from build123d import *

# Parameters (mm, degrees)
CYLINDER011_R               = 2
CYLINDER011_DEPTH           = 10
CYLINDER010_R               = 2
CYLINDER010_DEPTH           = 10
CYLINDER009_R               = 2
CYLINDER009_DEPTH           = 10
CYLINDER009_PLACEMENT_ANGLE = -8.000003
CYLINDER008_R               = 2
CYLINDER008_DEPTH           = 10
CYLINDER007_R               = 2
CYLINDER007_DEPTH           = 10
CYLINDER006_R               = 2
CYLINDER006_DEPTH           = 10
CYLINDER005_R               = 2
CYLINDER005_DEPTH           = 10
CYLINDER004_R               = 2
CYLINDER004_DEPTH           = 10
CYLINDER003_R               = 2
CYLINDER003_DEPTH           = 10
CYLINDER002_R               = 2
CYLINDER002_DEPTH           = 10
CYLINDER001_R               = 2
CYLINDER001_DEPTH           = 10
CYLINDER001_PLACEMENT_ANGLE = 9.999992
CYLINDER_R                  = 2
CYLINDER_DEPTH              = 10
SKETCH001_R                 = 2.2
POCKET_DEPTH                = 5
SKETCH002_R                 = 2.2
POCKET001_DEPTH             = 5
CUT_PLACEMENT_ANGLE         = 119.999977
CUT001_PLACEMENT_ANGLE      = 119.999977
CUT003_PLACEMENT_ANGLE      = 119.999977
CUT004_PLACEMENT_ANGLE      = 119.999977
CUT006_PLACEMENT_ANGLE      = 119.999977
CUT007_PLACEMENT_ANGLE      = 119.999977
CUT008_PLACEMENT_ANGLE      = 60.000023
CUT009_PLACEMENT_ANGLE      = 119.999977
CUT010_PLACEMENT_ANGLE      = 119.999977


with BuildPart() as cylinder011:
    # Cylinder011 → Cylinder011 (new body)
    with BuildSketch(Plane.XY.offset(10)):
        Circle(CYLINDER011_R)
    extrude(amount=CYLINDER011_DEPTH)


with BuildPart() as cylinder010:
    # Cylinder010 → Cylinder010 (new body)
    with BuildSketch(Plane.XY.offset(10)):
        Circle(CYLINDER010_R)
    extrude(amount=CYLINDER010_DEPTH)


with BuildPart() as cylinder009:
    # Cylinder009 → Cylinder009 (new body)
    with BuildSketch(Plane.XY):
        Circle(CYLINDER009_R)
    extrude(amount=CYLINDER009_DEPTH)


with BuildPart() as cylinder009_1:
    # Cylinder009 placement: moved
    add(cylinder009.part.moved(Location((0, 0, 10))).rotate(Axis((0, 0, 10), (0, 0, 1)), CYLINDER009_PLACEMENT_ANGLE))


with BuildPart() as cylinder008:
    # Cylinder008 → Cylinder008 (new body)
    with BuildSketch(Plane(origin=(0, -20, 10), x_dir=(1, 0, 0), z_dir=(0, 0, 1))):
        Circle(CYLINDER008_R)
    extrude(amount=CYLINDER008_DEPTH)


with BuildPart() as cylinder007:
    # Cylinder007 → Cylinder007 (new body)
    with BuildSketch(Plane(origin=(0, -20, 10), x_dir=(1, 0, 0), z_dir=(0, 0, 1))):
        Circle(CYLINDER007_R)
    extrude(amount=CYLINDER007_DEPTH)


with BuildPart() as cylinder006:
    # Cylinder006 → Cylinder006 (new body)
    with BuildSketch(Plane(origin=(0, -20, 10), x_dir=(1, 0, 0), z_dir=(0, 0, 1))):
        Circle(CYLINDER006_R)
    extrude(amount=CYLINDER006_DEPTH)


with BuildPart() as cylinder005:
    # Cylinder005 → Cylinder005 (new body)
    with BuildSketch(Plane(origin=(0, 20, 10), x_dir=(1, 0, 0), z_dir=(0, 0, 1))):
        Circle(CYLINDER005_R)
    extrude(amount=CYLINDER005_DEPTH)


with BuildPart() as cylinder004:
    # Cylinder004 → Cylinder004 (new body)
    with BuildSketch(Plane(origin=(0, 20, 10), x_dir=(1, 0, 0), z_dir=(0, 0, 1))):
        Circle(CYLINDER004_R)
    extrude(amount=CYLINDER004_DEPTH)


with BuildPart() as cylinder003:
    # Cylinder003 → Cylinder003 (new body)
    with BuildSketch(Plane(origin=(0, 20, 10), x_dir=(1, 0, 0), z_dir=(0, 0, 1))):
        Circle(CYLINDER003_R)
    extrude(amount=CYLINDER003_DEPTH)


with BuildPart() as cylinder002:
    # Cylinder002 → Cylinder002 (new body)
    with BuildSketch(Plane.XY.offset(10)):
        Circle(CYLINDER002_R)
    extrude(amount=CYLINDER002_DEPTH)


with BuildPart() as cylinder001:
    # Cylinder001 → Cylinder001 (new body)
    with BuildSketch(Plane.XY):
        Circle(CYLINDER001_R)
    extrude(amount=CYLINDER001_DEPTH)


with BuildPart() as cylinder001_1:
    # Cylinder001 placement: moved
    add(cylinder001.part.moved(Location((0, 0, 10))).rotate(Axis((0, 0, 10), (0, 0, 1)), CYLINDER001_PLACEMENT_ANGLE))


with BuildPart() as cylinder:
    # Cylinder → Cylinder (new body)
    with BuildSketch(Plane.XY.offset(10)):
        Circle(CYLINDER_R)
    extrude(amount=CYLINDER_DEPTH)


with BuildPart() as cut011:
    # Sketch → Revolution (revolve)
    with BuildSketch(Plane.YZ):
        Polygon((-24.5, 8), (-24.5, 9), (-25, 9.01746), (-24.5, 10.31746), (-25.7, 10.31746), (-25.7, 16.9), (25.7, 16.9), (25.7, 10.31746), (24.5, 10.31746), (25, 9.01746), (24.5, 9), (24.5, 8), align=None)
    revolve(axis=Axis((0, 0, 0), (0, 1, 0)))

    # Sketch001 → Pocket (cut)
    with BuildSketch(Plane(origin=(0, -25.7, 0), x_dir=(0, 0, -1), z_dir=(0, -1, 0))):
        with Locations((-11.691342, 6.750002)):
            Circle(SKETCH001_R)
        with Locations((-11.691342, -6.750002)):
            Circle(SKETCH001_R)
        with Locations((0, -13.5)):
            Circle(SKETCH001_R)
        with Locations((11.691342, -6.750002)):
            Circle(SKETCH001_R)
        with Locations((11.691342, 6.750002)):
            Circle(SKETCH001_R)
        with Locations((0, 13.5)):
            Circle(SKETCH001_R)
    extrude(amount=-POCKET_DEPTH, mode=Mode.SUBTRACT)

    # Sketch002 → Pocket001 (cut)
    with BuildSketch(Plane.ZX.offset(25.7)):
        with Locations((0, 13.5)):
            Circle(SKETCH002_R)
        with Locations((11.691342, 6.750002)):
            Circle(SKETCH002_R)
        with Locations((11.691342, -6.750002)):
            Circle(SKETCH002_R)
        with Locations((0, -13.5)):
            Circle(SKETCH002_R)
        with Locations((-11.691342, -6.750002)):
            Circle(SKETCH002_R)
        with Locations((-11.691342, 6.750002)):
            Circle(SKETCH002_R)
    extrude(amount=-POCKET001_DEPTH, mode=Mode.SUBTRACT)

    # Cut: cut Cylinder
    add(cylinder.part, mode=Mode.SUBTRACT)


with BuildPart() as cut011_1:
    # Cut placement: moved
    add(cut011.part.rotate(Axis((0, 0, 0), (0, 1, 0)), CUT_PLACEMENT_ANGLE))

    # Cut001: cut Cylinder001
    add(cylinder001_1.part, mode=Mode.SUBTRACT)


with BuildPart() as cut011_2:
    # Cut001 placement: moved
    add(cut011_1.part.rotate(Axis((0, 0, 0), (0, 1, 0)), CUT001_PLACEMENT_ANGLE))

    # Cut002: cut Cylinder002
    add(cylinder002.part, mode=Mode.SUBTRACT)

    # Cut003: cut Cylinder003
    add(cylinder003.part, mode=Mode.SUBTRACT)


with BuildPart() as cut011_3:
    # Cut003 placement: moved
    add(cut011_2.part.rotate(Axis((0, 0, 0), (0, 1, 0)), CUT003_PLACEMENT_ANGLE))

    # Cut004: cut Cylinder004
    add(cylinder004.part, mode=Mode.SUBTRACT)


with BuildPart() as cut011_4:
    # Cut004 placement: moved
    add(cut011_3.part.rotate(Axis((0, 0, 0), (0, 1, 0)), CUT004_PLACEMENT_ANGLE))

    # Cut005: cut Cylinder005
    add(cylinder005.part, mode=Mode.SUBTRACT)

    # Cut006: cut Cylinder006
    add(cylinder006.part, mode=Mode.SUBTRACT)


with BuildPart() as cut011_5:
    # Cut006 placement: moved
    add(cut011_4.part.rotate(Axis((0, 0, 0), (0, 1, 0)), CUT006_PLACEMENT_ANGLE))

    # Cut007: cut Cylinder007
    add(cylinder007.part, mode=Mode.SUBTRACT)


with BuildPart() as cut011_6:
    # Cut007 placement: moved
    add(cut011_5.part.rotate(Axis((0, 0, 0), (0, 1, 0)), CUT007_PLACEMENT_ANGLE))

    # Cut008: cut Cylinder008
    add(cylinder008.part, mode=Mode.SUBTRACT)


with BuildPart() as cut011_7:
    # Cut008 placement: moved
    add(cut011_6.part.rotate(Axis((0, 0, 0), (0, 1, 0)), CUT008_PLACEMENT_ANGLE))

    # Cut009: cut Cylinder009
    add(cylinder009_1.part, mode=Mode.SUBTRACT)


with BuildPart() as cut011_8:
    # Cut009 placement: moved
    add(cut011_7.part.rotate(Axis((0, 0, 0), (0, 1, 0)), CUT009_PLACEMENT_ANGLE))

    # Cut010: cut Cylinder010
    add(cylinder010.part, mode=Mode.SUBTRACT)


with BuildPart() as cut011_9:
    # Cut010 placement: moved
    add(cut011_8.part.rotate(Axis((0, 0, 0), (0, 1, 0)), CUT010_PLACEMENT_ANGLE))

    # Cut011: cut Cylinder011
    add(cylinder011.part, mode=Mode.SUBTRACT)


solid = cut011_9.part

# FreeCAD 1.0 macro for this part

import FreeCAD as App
import Part
import Sketcher

V = App.Vector
Q = App.Units.Quantity


def add_polygon(sketch, points):
    """Adds a closed chain of lines whose ends are joined by coincident constraints."""
    first, n = sketch.GeometryCount, len(points)
    for a, b in zip(points, points[1:] + points[:1]):
        sketch.addGeometry(Part.LineSegment(App.Vector(*a, 0), App.Vector(*b, 0)), False)
    for i in range(n):
        sketch.addConstraint(Sketcher.Constraint("Coincident", first + i, 2, first + (i + 1) % n, 1))

doc = App.newDocument("Part")
body = doc.addObject("PartDesign::Body", "Body")

# Sketch on XY plane
sketch1 = body.newObject("Sketcher::SketchObject", "Sketch")
sketch1.AttachmentSupport = (doc.getObject("XY_Plane"), [""])
sketch1.MapMode = "FlatFace"
sketch1.AttachmentOffset = App.Placement(V(0, 0, 10), App.Rotation())
sketch1.addGeometry(Part.Circle(V(0, 0, 0), V(0, 0, 1), 2), False)
sketch1.addConstraint([
    Sketcher.Constraint("Coincident", 0, 3, -1, 1),
    Sketcher.Constraint("Diameter", 0, Q("4 mm")),
])
pad1 = body.newObject("PartDesign::Pad", "Pad")
pad1.Profile = sketch1
pad1.Length = 10
body2 = doc.addObject("PartDesign::Body", "Body001")

# Sketch on XY plane
sketch2 = body2.newObject("Sketcher::SketchObject", "Sketch001")
sketch2.AttachmentSupport = (doc.getObject("XY_Plane001"), [""])
sketch2.MapMode = "FlatFace"
sketch2.AttachmentOffset = App.Placement(V(0, 0, 10), App.Rotation())
sketch2.addGeometry(Part.Circle(V(0, 0, 0), V(0, 0, 1), 2), False)
sketch2.addConstraint([
    Sketcher.Constraint("Coincident", 0, 3, -1, 1),
    Sketcher.Constraint("Diameter", 0, Q("4 mm")),
])
pad2 = body2.newObject("PartDesign::Pad", "Pad001")
pad2.Profile = sketch2
pad2.Length = 10
body3 = doc.addObject("PartDesign::Body", "Body002")

# Sketch on XY plane
sketch3 = body3.newObject("Sketcher::SketchObject", "Sketch002")
sketch3.AttachmentSupport = (doc.getObject("XY_Plane002"), [""])
sketch3.MapMode = "FlatFace"
sketch3.addGeometry(Part.Circle(V(0, 0, 0), V(0, 0, 1), 2), False)
sketch3.addConstraint([
    Sketcher.Constraint("Coincident", 0, 3, -1, 1),
    Sketcher.Constraint("Diameter", 0, Q("4 mm")),
])
pad3 = body3.newObject("PartDesign::Pad", "Pad002")
pad3.Profile = sketch3
pad3.Length = 10
body4 = doc.addObject("PartDesign::Body", "Body003")
doc.recompute()

body3.Placement = App.Placement(V(0, 0, 10), App.Rotation(V(0, 0, 1), 351.999997))
boolean = body4.newObject("PartDesign::Boolean", "Boolean")
boolean.Type = "Fuse"
boolean.addObjects([body3])
body5 = doc.addObject("PartDesign::Body", "Body004")

# Sketch on XY plane
sketch4 = body5.newObject("Sketcher::SketchObject", "Sketch003")
sketch4.AttachmentSupport = (doc.getObject("XY_Plane004"), [""])
sketch4.MapMode = "FlatFace"
sketch4.AttachmentOffset = App.Placement(V(0, 0, 10), App.Rotation())
sketch4.addGeometry(Part.Circle(V(0, -20, 0), V(0, 0, 1), 2), False)
sketch4.addConstraint([
    Sketcher.Constraint("PointOnObject", 0, 3, -2),
    Sketcher.Constraint("Diameter", 0, Q("4 mm")),
    Sketcher.Constraint("DistanceY", 0, 3, -1, 1, Q("20 mm")),
])
pad4 = body5.newObject("PartDesign::Pad", "Pad003")
pad4.Profile = sketch4
pad4.Length = 10
body6 = doc.addObject("PartDesign::Body", "Body005")

# Sketch on XY plane
sketch5 = body6.newObject("Sketcher::SketchObject", "Sketch004")
sketch5.AttachmentSupport = (doc.getObject("XY_Plane005"), [""])
sketch5.MapMode = "FlatFace"
sketch5.AttachmentOffset = App.Placement(V(0, 0, 10), App.Rotation())
sketch5.addGeometry(Part.Circle(V(0, -20, 0), V(0, 0, 1), 2), False)
sketch5.addConstraint([
    Sketcher.Constraint("PointOnObject", 0, 3, -2),
    Sketcher.Constraint("Diameter", 0, Q("4 mm")),
    Sketcher.Constraint("DistanceY", 0, 3, -1, 1, Q("20 mm")),
])
pad5 = body6.newObject("PartDesign::Pad", "Pad004")
pad5.Profile = sketch5
pad5.Length = 10
body7 = doc.addObject("PartDesign::Body", "Body006")

# Sketch on XY plane
sketch6 = body7.newObject("Sketcher::SketchObject", "Sketch005")
sketch6.AttachmentSupport = (doc.getObject("XY_Plane006"), [""])
sketch6.MapMode = "FlatFace"
sketch6.AttachmentOffset = App.Placement(V(0, 0, 10), App.Rotation())
sketch6.addGeometry(Part.Circle(V(0, -20, 0), V(0, 0, 1), 2), False)
sketch6.addConstraint([
    Sketcher.Constraint("PointOnObject", 0, 3, -2),
    Sketcher.Constraint("Diameter", 0, Q("4 mm")),
    Sketcher.Constraint("DistanceY", 0, 3, -1, 1, Q("20 mm")),
])
pad6 = body7.newObject("PartDesign::Pad", "Pad005")
pad6.Profile = sketch6
pad6.Length = 10
body8 = doc.addObject("PartDesign::Body", "Body007")

# Sketch on XY plane
sketch7 = body8.newObject("Sketcher::SketchObject", "Sketch006")
sketch7.AttachmentSupport = (doc.getObject("XY_Plane007"), [""])
sketch7.MapMode = "FlatFace"
sketch7.AttachmentOffset = App.Placement(V(0, 0, 10), App.Rotation())
sketch7.addGeometry(Part.Circle(V(0, 20, 0), V(0, 0, 1), 2), False)
sketch7.addConstraint([
    Sketcher.Constraint("PointOnObject", 0, 3, -2),
    Sketcher.Constraint("Diameter", 0, Q("4 mm")),
    Sketcher.Constraint("DistanceY", -1, 1, 0, 3, Q("20 mm")),
])
pad7 = body8.newObject("PartDesign::Pad", "Pad006")
pad7.Profile = sketch7
pad7.Length = 10
body9 = doc.addObject("PartDesign::Body", "Body008")

# Sketch on XY plane
sketch8 = body9.newObject("Sketcher::SketchObject", "Sketch007")
sketch8.AttachmentSupport = (doc.getObject("XY_Plane008"), [""])
sketch8.MapMode = "FlatFace"
sketch8.AttachmentOffset = App.Placement(V(0, 0, 10), App.Rotation())
sketch8.addGeometry(Part.Circle(V(0, 20, 0), V(0, 0, 1), 2), False)
sketch8.addConstraint([
    Sketcher.Constraint("PointOnObject", 0, 3, -2),
    Sketcher.Constraint("Diameter", 0, Q("4 mm")),
    Sketcher.Constraint("DistanceY", -1, 1, 0, 3, Q("20 mm")),
])
pad8 = body9.newObject("PartDesign::Pad", "Pad007")
pad8.Profile = sketch8
pad8.Length = 10
body10 = doc.addObject("PartDesign::Body", "Body009")

# Sketch on XY plane
sketch9 = body10.newObject("Sketcher::SketchObject", "Sketch008")
sketch9.AttachmentSupport = (doc.getObject("XY_Plane009"), [""])
sketch9.MapMode = "FlatFace"
sketch9.AttachmentOffset = App.Placement(V(0, 0, 10), App.Rotation())
sketch9.addGeometry(Part.Circle(V(0, 20, 0), V(0, 0, 1), 2), False)
sketch9.addConstraint([
    Sketcher.Constraint("PointOnObject", 0, 3, -2),
    Sketcher.Constraint("Diameter", 0, Q("4 mm")),
    Sketcher.Constraint("DistanceY", -1, 1, 0, 3, Q("20 mm")),
])
pad9 = body10.newObject("PartDesign::Pad", "Pad008")
pad9.Profile = sketch9
pad9.Length = 10
body11 = doc.addObject("PartDesign::Body", "Body010")

# Sketch on XY plane
sketch10 = body11.newObject("Sketcher::SketchObject", "Sketch009")
sketch10.AttachmentSupport = (doc.getObject("XY_Plane010"), [""])
sketch10.MapMode = "FlatFace"
sketch10.AttachmentOffset = App.Placement(V(0, 0, 10), App.Rotation())
sketch10.addGeometry(Part.Circle(V(0, 0, 0), V(0, 0, 1), 2), False)
sketch10.addConstraint([
    Sketcher.Constraint("Coincident", 0, 3, -1, 1),
    Sketcher.Constraint("Diameter", 0, Q("4 mm")),
])
pad10 = body11.newObject("PartDesign::Pad", "Pad009")
pad10.Profile = sketch10
pad10.Length = 10
body12 = doc.addObject("PartDesign::Body", "Body011")

# Sketch on XY plane
sketch11 = body12.newObject("Sketcher::SketchObject", "Sketch010")
sketch11.AttachmentSupport = (doc.getObject("XY_Plane011"), [""])
sketch11.MapMode = "FlatFace"
sketch11.addGeometry(Part.Circle(V(0, 0, 0), V(0, 0, 1), 2), False)
sketch11.addConstraint([
    Sketcher.Constraint("Coincident", 0, 3, -1, 1),
    Sketcher.Constraint("Diameter", 0, Q("4 mm")),
])
pad11 = body12.newObject("PartDesign::Pad", "Pad010")
pad11.Profile = sketch11
pad11.Length = 10
body13 = doc.addObject("PartDesign::Body", "Body012")
doc.recompute()

body12.Placement = App.Placement(V(0, 0, 10), App.Rotation(V(0, 0, 1), 9.999992))
boolean2 = body13.newObject("PartDesign::Boolean", "Boolean001")
boolean2.Type = "Fuse"
boolean2.addObjects([body12])
body14 = doc.addObject("PartDesign::Body", "Body013")

# Sketch on XY plane
sketch12 = body14.newObject("Sketcher::SketchObject", "Sketch011")
sketch12.AttachmentSupport = (doc.getObject("XY_Plane013"), [""])
sketch12.MapMode = "FlatFace"
sketch12.AttachmentOffset = App.Placement(V(0, 0, 10), App.Rotation())
sketch12.addGeometry(Part.Circle(V(0, 0, 0), V(0, 0, 1), 2), False)
sketch12.addConstraint([
    Sketcher.Constraint("Coincident", 0, 3, -1, 1),
    Sketcher.Constraint("Diameter", 0, Q("4 mm")),
])
pad12 = body14.newObject("PartDesign::Pad", "Pad011")
pad12.Profile = sketch12
pad12.Length = 10
body15 = doc.addObject("PartDesign::Body", "Body014")

# Sketch on YZ plane
sketch13 = body15.newObject("Sketcher::SketchObject", "Sketch012")
sketch13.AttachmentSupport = (doc.getObject("YZ_Plane014"), [""])
sketch13.MapMode = "FlatFace"
add_polygon(sketch13, [(-24.5, 9), (-24.5, 8), (24.5, 8), (24.5, 9), (25, 9), (24.5, 10.3), (25.7, 10.3), (25.7, 16.9), (-25.7, 16.9), (-25.7, 10.3), (-24.5, 10.3), (-25, 9)])  # lines 0-11
sketch13.addConstraint([
    Sketcher.Constraint("Vertical", 0),
    Sketcher.Constraint("Horizontal", 1),
    Sketcher.Constraint("Vertical", 2),
    Sketcher.Constraint("Horizontal", 5),
    Sketcher.Constraint("Vertical", 6),
    Sketcher.Constraint("Horizontal", 7),
    Sketcher.Constraint("Vertical", 8),
    Sketcher.Constraint("Horizontal", 9),
    Sketcher.Constraint("Symmetric", 5, 2, 8, 2, -2),
    Sketcher.Constraint("Symmetric", 3, 2, 10, 2, -2),
    Sketcher.Constraint("Symmetric", 2, 2, 11, 2, -2),
    Sketcher.Constraint("Vertical", 2, 2, 4, 2),
    Sketcher.Constraint("Vertical", 0, 2, 9, 2),
    Sketcher.Constraint("DistanceX", 1, 1, 1, 2, Q("49 mm")),
    Sketcher.Constraint("DistanceY", 0, 2, 0, 1, Q("1 mm")),
    Sketcher.Constraint("DistanceX", 5, 1, 5, 2, Q("1.2 mm")),
    Sketcher.Constraint("DistanceY", -1, 1, 0, 2, Q("8 mm")),
    Sketcher.Constraint("DistanceX", -1, 1, 3, 2, Q("25 mm")),
    Sketcher.Constraint("DistanceY", -1, 1, 6, 2, Q("16.9 mm")),
    Sketcher.Constraint("DistanceY", 3, 2, 4, 2, Q("1.3 mm")),
    Sketcher.Constraint("DistanceY", 6, 1, 6, 2, Q("6.58254 mm")),
])
revolution = body15.newObject("PartDesign::Revolution", "Revolution")
revolution.Profile = sketch13
revolution.ReferenceAxis = (sketch13, ["H_Axis"])
revolution.Angle = 360

# Sketch on XZ plane
sketch14 = body15.newObject("Sketcher::SketchObject", "Sketch013")
sketch14.AttachmentSupport = (doc.getObject("XZ_Plane014"), [""])
sketch14.MapMode = "FlatFace"
sketch14.AttachmentOffset = App.Placement(V(0, 0, 25.7), App.Rotation())
sketch14.addGeometry([
    Part.Circle(V(6.8, 11.7, 0), V(0, 0, 1), 2.2),  # 0
    Part.Circle(V(-6.8, 11.7, 0), V(0, 0, 1), 2.2),  # 1
    Part.Circle(V(-13.5, 0, 0), V(0, 0, 1), 2.2),  # 2
    Part.Circle(V(-6.8, -11.7, 0), V(0, 0, 1), 2.2),  # 3
    Part.Circle(V(6.8, -11.7, 0), V(0, 0, 1), 2.2),  # 4
    Part.Circle(V(13.5, 0, 0), V(0, 0, 1), 2.2),  # 5
], False)
sketch14.addConstraint([
    Sketcher.Constraint("Equal", 0, 1),
    Sketcher.Constraint("Equal", 1, 2),
    Sketcher.Constraint("Equal", 2, 3),
    Sketcher.Constraint("Equal", 3, 4),
    Sketcher.Constraint("Equal", 4, 5),
    Sketcher.Constraint("Symmetric", 0, 3, 3, 3, -1, 1),
    Sketcher.Constraint("Symmetric", 1, 3, 4, 3, -1, 1),
    Sketcher.Constraint("Symmetric", 2, 3, 5, 3, -1, 1),
    Sketcher.Constraint("Symmetric", 0, 3, 1, 3, -2),
    Sketcher.Constraint("PointOnObject", 2, 3, -1),
    Sketcher.Constraint("Diameter", 0, Q("4.4 mm")),
    Sketcher.Constraint("DistanceX", 2, 3, 5, 3, Q("27 mm")),
    Sketcher.Constraint("DistanceX", -1, 1, 0, 3, Q("6.750002 mm")),
    Sketcher.Constraint("DistanceY", -1, 1, 0, 3, Q("11.691342 mm")),
])
pocket1 = body15.newObject("PartDesign::Pocket", "Pocket")
pocket1.Profile = sketch14
pocket1.Length = 5

# Sketch on XZ plane
sketch15 = body15.newObject("Sketcher::SketchObject", "Sketch014")
sketch15.AttachmentSupport = (doc.getObject("XZ_Plane014"), [""])
sketch15.MapMode = "FlatFace"
sketch15.AttachmentOffset = App.Placement(V(0, 0, -25.7), App.Rotation())
sketch15.addGeometry([
    Part.Circle(V(13.5, 0, 0), V(0, 0, 1), 2.2),  # 0
    Part.Circle(V(6.8, 11.7, 0), V(0, 0, 1), 2.2),  # 1
    Part.Circle(V(-6.8, 11.7, 0), V(0, 0, 1), 2.2),  # 2
    Part.Circle(V(-13.5, 0, 0), V(0, 0, 1), 2.2),  # 3
    Part.Circle(V(-6.8, -11.7, 0), V(0, 0, 1), 2.2),  # 4
    Part.Circle(V(6.8, -11.7, 0), V(0, 0, 1), 2.2),  # 5
], False)
sketch15.addConstraint([
    Sketcher.Constraint("Equal", 0, 1),
    Sketcher.Constraint("Equal", 1, 2),
    Sketcher.Constraint("Equal", 2, 3),
    Sketcher.Constraint("Equal", 3, 4),
    Sketcher.Constraint("Equal", 4, 5),
    Sketcher.Constraint("Symmetric", 0, 3, 3, 3, -1, 1),
    Sketcher.Constraint("Symmetric", 1, 3, 4, 3, -1, 1),
    Sketcher.Constraint("Symmetric", 2, 3, 5, 3, -1, 1),
    Sketcher.Constraint("Symmetric", 1, 3, 2, 3, -2),
    Sketcher.Constraint("PointOnObject", 0, 3, -1),
    Sketcher.Constraint("Diameter", 0, Q("4.4 mm")),
    Sketcher.Constraint("DistanceX", 3, 3, 0, 3, Q("27 mm")),
    Sketcher.Constraint("DistanceX", -1, 1, 1, 3, Q("6.750002 mm")),
    Sketcher.Constraint("DistanceY", -1, 1, 1, 3, Q("11.691342 mm")),
])
pocket2 = body15.newObject("PartDesign::Pocket", "Pocket001")
pocket2.Profile = sketch15
pocket2.Length = 5
pocket2.Reversed = True
doc.recompute()

boolean3 = body15.newObject("PartDesign::Boolean", "Boolean002")
boolean3.Type = "Cut"
boolean3.addObjects([body14])
body16 = doc.addObject("PartDesign::Body", "Body015")
doc.recompute()

body15.Placement = App.Placement(V(0, 0, 0), App.Rotation(V(0, 1, 0), 119.999977))
boolean4 = body16.newObject("PartDesign::Boolean", "Boolean003")
boolean4.Type = "Fuse"
boolean4.addObjects([body15])
doc.recompute()

boolean5 = body16.newObject("PartDesign::Boolean", "Boolean004")
boolean5.Type = "Cut"
boolean5.addObjects([body13])
body17 = doc.addObject("PartDesign::Body", "Body016")
doc.recompute()

body16.Placement = App.Placement(V(0, 0, 0), App.Rotation(V(0, 1, 0), 119.999977))
boolean6 = body17.newObject("PartDesign::Boolean", "Boolean005")
boolean6.Type = "Fuse"
boolean6.addObjects([body16])
doc.recompute()

boolean7 = body17.newObject("PartDesign::Boolean", "Boolean006")
boolean7.Type = "Cut"
boolean7.addObjects([body11])
doc.recompute()

boolean8 = body17.newObject("PartDesign::Boolean", "Boolean007")
boolean8.Type = "Cut"
boolean8.addObjects([body10])
body18 = doc.addObject("PartDesign::Body", "Body017")
doc.recompute()

body17.Placement = App.Placement(V(0, 0, 0), App.Rotation(V(0, 1, 0), 119.999977))
boolean9 = body18.newObject("PartDesign::Boolean", "Boolean008")
boolean9.Type = "Fuse"
boolean9.addObjects([body17])
doc.recompute()

boolean10 = body18.newObject("PartDesign::Boolean", "Boolean009")
boolean10.Type = "Cut"
boolean10.addObjects([body9])
body19 = doc.addObject("PartDesign::Body", "Body018")
doc.recompute()

body18.Placement = App.Placement(V(0, 0, 0), App.Rotation(V(0, 1, 0), 119.999977))
boolean11 = body19.newObject("PartDesign::Boolean", "Boolean010")
boolean11.Type = "Fuse"
boolean11.addObjects([body18])
doc.recompute()

boolean12 = body19.newObject("PartDesign::Boolean", "Boolean011")
boolean12.Type = "Cut"
boolean12.addObjects([body8])
doc.recompute()

boolean13 = body19.newObject("PartDesign::Boolean", "Boolean012")
boolean13.Type = "Cut"
boolean13.addObjects([body7])
body20 = doc.addObject("PartDesign::Body", "Body019")
doc.recompute()

body19.Placement = App.Placement(V(0, 0, 0), App.Rotation(V(0, 1, 0), 119.999977))
boolean14 = body20.newObject("PartDesign::Boolean", "Boolean013")
boolean14.Type = "Fuse"
boolean14.addObjects([body19])
doc.recompute()

boolean15 = body20.newObject("PartDesign::Boolean", "Boolean014")
boolean15.Type = "Cut"
boolean15.addObjects([body6])
body21 = doc.addObject("PartDesign::Body", "Body020")
doc.recompute()

body20.Placement = App.Placement(V(0, 0, 0), App.Rotation(V(0, 1, 0), 119.999977))
boolean16 = body21.newObject("PartDesign::Boolean", "Boolean015")
boolean16.Type = "Fuse"
boolean16.addObjects([body20])
doc.recompute()

boolean17 = body21.newObject("PartDesign::Boolean", "Boolean016")
boolean17.Type = "Cut"
boolean17.addObjects([body5])
body22 = doc.addObject("PartDesign::Body", "Body021")
doc.recompute()

body21.Placement = App.Placement(V(0, 0, 0), App.Rotation(V(0, 1, 0), 60.000023))
boolean18 = body22.newObject("PartDesign::Boolean", "Boolean017")
boolean18.Type = "Fuse"
boolean18.addObjects([body21])
doc.recompute()

boolean19 = body22.newObject("PartDesign::Boolean", "Boolean018")
boolean19.Type = "Cut"
boolean19.addObjects([body4])
body23 = doc.addObject("PartDesign::Body", "Body022")
doc.recompute()

body22.Placement = App.Placement(V(0, 0, 0), App.Rotation(V(0, 1, 0), 119.999977))
boolean20 = body23.newObject("PartDesign::Boolean", "Boolean019")
boolean20.Type = "Fuse"
boolean20.addObjects([body22])
doc.recompute()

boolean21 = body23.newObject("PartDesign::Boolean", "Boolean020")
boolean21.Type = "Cut"
boolean21.addObjects([body2])
body24 = doc.addObject("PartDesign::Body", "Body023")
doc.recompute()

body23.Placement = App.Placement(V(0, 0, 0), App.Rotation(V(0, 1, 0), 119.999977))
boolean22 = body24.newObject("PartDesign::Boolean", "Boolean021")
boolean22.Type = "Fuse"
boolean22.addObjects([body23])
doc.recompute()

boolean23 = body24.newObject("PartDesign::Boolean", "Boolean022")
boolean23.Type = "Cut"
boolean23.addObjects([body])

doc.recompute()
